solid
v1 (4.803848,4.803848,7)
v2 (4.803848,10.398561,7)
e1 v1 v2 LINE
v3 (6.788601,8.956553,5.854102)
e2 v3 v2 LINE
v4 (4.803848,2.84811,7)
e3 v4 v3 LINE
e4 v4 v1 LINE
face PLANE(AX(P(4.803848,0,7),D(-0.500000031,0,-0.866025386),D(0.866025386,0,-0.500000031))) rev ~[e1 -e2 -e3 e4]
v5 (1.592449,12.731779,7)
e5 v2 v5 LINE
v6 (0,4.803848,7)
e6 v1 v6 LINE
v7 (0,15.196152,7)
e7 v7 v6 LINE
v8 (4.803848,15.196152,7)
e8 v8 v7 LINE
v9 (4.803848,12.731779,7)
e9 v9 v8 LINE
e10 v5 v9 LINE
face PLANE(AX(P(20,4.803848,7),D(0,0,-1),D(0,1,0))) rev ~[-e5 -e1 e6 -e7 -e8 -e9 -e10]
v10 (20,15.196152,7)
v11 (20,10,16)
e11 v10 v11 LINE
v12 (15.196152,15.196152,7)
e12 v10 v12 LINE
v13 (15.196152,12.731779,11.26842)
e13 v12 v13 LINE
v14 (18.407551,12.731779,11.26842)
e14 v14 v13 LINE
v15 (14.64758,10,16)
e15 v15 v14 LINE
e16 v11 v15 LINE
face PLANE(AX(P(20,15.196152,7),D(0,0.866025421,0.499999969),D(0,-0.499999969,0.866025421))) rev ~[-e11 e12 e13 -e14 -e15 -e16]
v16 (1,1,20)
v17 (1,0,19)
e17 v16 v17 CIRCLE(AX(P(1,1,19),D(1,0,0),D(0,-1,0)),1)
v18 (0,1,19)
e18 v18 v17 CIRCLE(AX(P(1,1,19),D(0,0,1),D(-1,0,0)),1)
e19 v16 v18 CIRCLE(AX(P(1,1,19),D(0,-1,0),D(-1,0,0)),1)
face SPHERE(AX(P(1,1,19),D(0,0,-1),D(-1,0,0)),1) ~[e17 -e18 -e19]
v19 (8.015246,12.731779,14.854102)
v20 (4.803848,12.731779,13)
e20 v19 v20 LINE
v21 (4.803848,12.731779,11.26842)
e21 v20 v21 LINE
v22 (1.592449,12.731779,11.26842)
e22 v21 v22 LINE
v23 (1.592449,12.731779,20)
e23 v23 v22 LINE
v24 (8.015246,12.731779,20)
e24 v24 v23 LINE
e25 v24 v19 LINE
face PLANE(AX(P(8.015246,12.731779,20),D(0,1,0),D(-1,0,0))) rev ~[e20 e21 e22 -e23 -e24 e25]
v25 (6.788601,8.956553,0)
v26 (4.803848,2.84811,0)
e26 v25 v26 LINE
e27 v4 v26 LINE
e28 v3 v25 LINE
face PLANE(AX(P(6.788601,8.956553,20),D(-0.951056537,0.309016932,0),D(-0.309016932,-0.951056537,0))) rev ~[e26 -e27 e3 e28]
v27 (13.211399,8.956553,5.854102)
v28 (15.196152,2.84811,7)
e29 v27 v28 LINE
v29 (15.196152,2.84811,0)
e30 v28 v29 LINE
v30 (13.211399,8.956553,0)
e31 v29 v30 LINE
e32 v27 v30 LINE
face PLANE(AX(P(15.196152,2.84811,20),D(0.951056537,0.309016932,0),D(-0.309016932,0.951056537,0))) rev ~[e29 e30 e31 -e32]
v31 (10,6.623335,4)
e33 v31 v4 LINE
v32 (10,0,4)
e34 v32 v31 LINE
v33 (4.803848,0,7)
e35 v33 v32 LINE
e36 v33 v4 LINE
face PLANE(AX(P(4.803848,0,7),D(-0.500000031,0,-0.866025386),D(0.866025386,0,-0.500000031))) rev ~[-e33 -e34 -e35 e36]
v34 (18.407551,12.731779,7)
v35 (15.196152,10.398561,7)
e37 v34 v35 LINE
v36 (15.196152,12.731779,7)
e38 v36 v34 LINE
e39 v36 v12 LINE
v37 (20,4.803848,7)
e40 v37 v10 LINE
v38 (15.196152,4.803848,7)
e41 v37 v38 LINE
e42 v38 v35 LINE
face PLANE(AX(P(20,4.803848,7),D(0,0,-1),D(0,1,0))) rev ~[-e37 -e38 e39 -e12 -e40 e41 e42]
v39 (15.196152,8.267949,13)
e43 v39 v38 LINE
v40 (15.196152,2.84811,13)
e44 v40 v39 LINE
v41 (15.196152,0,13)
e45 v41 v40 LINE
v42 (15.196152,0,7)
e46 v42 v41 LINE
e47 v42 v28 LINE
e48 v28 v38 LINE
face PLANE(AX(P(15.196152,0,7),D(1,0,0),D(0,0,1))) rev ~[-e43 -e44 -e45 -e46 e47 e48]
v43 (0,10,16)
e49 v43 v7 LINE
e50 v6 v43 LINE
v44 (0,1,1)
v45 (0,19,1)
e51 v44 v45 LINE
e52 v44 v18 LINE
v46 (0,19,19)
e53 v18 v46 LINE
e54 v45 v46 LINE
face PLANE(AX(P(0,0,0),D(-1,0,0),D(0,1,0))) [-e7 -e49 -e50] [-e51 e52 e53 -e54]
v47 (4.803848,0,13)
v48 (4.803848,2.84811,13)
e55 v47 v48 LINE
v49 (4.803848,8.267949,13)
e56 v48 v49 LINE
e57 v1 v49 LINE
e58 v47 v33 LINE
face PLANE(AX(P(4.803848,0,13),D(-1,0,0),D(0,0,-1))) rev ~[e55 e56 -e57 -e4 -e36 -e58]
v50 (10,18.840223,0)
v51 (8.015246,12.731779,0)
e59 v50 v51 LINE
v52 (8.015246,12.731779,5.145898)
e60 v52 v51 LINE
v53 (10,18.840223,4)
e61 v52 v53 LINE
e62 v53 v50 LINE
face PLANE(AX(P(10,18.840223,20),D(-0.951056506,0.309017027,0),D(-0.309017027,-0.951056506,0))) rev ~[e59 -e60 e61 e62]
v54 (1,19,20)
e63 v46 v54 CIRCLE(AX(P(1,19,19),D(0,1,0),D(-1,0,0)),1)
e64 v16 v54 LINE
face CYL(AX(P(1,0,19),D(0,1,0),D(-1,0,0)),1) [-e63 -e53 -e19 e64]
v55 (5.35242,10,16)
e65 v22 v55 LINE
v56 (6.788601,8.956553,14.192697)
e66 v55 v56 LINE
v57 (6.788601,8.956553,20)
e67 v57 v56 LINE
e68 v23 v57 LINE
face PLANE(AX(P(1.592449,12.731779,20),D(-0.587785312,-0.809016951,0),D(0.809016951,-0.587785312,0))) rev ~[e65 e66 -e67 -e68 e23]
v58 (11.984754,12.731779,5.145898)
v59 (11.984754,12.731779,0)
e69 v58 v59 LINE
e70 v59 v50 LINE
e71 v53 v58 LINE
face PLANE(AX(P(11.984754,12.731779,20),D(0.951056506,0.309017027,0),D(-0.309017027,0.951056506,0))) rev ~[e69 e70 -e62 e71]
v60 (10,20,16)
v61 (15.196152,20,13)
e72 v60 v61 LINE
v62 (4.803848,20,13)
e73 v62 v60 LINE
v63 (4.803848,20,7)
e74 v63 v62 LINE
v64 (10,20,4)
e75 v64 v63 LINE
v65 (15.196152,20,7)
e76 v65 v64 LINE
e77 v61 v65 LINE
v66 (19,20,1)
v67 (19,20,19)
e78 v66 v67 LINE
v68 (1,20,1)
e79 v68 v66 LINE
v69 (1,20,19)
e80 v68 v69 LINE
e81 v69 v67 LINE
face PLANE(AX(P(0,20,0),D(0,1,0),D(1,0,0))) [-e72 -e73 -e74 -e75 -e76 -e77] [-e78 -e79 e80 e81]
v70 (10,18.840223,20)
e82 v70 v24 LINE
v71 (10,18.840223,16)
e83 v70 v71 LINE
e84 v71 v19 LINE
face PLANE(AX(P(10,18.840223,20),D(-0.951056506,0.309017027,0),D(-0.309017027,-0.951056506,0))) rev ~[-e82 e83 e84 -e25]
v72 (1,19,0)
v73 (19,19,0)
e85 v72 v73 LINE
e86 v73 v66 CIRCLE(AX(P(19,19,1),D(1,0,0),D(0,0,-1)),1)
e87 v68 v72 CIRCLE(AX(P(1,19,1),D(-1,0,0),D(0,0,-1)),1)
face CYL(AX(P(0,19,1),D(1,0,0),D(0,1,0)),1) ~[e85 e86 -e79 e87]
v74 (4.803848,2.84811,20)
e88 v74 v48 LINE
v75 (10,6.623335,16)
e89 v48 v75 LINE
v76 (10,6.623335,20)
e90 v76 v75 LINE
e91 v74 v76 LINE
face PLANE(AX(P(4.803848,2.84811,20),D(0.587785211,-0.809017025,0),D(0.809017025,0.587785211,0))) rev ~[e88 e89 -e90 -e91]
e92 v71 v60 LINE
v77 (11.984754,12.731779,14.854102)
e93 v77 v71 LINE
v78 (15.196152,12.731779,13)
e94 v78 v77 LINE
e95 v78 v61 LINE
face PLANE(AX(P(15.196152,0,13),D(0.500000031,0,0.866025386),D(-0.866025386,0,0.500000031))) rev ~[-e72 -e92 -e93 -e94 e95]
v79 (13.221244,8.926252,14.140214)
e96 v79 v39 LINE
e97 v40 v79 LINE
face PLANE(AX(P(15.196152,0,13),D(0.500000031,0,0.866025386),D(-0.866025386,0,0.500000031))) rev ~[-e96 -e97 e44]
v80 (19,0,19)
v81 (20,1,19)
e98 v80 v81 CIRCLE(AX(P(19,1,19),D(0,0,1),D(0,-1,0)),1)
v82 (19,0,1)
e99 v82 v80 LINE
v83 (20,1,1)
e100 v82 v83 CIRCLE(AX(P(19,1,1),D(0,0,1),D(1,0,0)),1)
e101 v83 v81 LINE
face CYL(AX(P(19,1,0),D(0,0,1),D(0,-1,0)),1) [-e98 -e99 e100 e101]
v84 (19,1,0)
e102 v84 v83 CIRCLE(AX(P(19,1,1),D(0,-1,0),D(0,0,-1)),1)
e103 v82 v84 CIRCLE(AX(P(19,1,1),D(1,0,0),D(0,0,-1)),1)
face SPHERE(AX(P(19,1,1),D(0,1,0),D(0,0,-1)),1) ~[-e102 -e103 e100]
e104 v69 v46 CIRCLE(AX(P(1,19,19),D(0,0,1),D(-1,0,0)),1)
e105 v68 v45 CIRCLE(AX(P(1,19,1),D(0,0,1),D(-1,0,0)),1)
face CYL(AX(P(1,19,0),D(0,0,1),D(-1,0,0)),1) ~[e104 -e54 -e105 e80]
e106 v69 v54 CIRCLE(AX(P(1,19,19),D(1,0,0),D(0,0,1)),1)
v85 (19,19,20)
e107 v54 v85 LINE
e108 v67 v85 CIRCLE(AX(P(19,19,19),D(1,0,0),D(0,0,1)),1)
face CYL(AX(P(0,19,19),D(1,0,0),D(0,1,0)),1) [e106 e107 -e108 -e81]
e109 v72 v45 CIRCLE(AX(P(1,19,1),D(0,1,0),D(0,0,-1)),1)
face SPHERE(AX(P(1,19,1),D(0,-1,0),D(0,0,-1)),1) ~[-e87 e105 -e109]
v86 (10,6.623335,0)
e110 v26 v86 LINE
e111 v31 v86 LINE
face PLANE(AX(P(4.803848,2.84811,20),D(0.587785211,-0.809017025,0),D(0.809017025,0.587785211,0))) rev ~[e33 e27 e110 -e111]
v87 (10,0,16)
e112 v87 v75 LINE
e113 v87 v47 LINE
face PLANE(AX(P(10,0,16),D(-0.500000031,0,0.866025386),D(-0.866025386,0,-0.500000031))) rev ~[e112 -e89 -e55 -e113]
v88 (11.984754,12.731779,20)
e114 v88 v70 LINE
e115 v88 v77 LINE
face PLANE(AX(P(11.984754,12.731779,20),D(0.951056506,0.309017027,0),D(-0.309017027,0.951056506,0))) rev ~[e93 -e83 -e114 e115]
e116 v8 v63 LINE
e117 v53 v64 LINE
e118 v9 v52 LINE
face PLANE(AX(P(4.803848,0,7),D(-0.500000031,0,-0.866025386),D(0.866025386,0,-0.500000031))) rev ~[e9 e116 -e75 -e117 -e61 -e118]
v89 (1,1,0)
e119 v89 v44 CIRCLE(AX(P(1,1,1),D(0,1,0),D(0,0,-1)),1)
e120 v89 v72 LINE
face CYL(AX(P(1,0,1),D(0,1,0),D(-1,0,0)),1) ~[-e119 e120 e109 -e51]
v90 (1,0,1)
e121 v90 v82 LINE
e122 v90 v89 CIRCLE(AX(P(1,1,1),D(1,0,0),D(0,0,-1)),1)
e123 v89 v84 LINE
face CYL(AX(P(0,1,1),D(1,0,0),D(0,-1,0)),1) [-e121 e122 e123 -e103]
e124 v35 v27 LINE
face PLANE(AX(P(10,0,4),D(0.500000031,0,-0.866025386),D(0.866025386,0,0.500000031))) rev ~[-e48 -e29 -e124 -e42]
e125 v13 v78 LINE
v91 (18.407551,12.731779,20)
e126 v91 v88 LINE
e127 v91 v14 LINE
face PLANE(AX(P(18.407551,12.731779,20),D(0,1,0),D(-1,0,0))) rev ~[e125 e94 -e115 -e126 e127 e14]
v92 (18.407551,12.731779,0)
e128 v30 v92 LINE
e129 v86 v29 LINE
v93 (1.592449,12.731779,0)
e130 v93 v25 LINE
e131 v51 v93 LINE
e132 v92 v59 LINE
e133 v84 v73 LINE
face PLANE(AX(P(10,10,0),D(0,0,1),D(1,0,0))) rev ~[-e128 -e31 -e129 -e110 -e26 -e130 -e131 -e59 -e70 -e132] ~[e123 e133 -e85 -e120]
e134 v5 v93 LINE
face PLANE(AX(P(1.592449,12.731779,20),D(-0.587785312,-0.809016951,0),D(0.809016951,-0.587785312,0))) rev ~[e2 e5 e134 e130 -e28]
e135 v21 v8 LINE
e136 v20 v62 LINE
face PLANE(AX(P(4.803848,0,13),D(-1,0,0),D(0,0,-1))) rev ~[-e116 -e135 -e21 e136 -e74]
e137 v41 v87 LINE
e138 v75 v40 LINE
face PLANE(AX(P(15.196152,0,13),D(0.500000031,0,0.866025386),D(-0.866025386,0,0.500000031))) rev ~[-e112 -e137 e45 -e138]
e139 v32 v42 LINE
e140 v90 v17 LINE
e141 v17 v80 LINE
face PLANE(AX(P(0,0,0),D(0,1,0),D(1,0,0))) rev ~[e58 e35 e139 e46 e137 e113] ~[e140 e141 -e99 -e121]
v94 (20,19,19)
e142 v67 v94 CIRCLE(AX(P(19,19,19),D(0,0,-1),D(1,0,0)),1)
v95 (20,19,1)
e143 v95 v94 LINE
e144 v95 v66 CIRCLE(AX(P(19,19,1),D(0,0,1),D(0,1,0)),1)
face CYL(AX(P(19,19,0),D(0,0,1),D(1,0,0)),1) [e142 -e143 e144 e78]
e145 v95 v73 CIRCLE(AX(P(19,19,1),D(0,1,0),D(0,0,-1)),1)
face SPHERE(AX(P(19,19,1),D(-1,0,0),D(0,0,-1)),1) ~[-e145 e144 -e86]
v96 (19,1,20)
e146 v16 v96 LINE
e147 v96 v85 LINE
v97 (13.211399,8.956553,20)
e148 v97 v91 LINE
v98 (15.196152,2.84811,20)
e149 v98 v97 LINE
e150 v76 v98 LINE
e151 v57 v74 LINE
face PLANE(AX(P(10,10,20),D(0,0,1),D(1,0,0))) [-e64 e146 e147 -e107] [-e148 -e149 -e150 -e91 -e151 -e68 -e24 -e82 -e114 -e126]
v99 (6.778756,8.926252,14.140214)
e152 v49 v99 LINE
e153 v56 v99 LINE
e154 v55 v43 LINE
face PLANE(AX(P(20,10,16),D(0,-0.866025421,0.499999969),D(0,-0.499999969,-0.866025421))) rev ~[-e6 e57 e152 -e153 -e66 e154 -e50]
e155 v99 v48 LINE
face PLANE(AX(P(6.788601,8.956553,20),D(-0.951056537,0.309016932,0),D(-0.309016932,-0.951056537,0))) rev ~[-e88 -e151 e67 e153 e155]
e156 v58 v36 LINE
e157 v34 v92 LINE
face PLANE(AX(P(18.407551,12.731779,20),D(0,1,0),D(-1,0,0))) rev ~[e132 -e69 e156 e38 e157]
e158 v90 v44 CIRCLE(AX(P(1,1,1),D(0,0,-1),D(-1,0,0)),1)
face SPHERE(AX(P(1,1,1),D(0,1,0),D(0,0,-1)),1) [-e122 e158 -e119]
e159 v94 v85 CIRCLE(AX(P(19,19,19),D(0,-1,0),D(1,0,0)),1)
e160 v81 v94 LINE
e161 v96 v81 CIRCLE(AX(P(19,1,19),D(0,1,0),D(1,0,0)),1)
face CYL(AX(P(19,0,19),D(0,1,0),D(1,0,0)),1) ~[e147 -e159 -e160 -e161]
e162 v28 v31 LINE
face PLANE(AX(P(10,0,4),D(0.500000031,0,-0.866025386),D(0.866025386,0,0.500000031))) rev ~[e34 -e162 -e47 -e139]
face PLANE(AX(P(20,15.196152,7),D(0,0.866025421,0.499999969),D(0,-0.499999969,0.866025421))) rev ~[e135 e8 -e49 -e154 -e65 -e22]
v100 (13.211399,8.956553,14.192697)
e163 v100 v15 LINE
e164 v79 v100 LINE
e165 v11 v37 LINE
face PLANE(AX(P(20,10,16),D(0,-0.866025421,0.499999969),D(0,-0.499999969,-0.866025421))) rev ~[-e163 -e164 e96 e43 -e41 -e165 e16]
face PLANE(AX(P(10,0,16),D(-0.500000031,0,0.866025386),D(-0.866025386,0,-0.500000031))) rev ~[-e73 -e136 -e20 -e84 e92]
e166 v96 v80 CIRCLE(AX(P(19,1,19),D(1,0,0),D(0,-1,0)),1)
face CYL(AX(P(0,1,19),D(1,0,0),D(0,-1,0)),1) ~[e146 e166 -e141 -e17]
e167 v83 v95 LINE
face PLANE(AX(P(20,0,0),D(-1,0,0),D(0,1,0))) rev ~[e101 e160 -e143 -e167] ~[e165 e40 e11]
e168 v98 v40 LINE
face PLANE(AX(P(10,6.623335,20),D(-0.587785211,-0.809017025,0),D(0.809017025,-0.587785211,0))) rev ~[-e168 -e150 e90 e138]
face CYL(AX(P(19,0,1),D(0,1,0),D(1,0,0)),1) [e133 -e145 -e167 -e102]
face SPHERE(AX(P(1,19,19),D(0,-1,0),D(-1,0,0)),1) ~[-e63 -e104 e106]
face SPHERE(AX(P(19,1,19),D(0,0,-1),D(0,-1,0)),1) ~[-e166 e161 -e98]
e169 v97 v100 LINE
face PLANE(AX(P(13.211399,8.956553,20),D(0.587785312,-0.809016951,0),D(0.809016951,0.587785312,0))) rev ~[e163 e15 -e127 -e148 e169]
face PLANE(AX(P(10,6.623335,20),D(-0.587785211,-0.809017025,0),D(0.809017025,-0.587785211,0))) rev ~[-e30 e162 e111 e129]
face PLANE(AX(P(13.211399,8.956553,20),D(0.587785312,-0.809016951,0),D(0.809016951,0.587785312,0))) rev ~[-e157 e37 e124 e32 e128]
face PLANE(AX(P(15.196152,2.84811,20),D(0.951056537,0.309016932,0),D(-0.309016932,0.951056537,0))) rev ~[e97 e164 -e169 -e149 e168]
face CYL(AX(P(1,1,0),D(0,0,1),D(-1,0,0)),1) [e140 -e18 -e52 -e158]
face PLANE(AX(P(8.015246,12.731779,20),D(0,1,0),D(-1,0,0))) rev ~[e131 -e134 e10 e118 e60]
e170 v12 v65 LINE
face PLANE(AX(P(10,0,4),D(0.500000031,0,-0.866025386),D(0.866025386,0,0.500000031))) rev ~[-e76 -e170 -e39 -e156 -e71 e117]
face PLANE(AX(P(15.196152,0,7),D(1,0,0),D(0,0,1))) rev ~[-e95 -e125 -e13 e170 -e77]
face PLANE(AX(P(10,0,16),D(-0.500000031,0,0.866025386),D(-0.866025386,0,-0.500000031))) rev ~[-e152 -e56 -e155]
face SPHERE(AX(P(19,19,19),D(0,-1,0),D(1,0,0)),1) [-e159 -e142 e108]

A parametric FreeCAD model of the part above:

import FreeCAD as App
import Part
import Sketcher
Q = App.Units.Quantity


def add_polygon(sketch, points):
    """Adds a closed chain of lines whose ends are joined by coincident constraints."""
    first, n = sketch.GeometryCount, len(points)
    for a, b in zip(points, points[1:] + points[:1]):
        sketch.addGeometry(Part.LineSegment(App.Vector(*a, 0), App.Vector(*b, 0)), False)
    for i in range(n):
        sketch.addConstraint(Sketcher.Constraint("Coincident", first + i, 2, first + (i + 1) % n, 1))

doc = App.newDocument("Part")
params = doc.addObject("Spreadsheet::Sheet", "Params")
for row, (alias, value) in enumerate([
    ("sketch1_width", "20 mm"),
    ("pad1_length", "20 mm"),
    ("fillet_radius", "1 mm"),
    ("sketch2_height", "6 mm"),
    ("sketch2_length", "6 mm"),
], start=1):
    params.set(f"A{row}", alias)
    params.set(f"B{row}", "=" + value)
    params.setAlias(f"B{row}", alias)

body = doc.addObject("PartDesign::Body", "Body")

sketch1 = doc.addObject("Sketcher::SketchObject", "Sketch")
body.addObject(sketch1)
sketch1.AttachmentSupport = (doc.XY_Plane, [""])
sketch1.MapMode = "FlatFace"
add_polygon(sketch1, [(0, 20), (0, 0), (20, 0), (20, 20)])
sketch1.addConstraint(Sketcher.Constraint("Vertical", 0))
sketch1.addConstraint(Sketcher.Constraint("Horizontal", 1))
sketch1.addConstraint(Sketcher.Constraint("Vertical", 2))
sketch1.addConstraint(Sketcher.Constraint("Horizontal", 3))
sketch1.addConstraint(Sketcher.Constraint("Coincident", 0, 2, -1, 1))
sketch1.addConstraint(Sketcher.Constraint("Equal", 3, 0))
sketch1.addConstraint(Sketcher.Constraint("DistanceX", 1, 1, 1, 2, Q("20 mm")))
sketch1.setExpression("Constraints[10]", "Params.sketch1_width")
pad1 = doc.addObject("PartDesign::Pad", "Pad")
body.addObject(pad1)
pad1.Profile = sketch1
pad1.setExpression("Length", "Params.pad1_length")
doc.recompute()

fillet = doc.addObject("PartDesign::Fillet", "Fillet")
body.addObject(fillet)
fillet.Base = (pad1, ["Edge1"])
fillet.UseAllEdges = True
fillet.setExpression("Radius", "Params.fillet_radius")

sketch2 = doc.addObject("Sketcher::SketchObject", "Sketch001")
body.addObject(sketch2)
sketch2.AttachmentSupport = (doc.XZ_Plane, [""])
sketch2.MapMode = "FlatFace"
add_polygon(sketch2, [(15, 7), (15, 13), (10, 16), (5, 13), (5, 7), (10, 4)])
sketch2.addConstraint(Sketcher.Constraint("Vertical", 0))
sketch2.addConstraint(Sketcher.Constraint("Vertical", 3))
sketch2.addConstraint(Sketcher.Constraint("Parallel", 1, 4))
sketch2.addConstraint(Sketcher.Constraint("Parallel", 2, 5))
sketch2.addConstraint(Sketcher.Constraint("Horizontal", 0, 2, 2, 2))
sketch2.addConstraint(Sketcher.Constraint("Horizontal", 3, 2, 5, 2))
sketch2.addConstraint(Sketcher.Constraint("Vertical", 1, 2, 4, 2))
sketch2.addConstraint(Sketcher.Constraint("DistanceY", 0, 1, 0, 2, Q("6 mm")))
sketch2.addConstraint(Sketcher.Constraint("Angle", 1, Q("149.999998 deg")))
sketch2.addConstraint(Sketcher.Constraint("Distance", 1, Q("6 mm")))
sketch2.addConstraint(Sketcher.Constraint("DistanceY", -1, 1, 0, 2, Q("13 mm")))
sketch2.addConstraint(Sketcher.Constraint("DistanceX", -1, 1, 1, 2, Q("10 mm")))
sketch2.setExpression("Constraints[13]", "Params.sketch2_height")
sketch2.setExpression("Constraints[15]", "Params.sketch2_length")
pocket1 = doc.addObject("PartDesign::Pocket", "Pocket")
body.addObject(pocket1)
pocket1.Profile = sketch2
pocket1.Type = "ThroughAll"

sketch3 = doc.addObject("Sketcher::SketchObject", "Sketch002")
body.addObject(sketch3)
sketch3.AttachmentSupport = (doc.YZ_Plane, [""])
sketch3.MapMode = "FlatFace"
sketch3.AttachmentOffset = App.Placement(App.Vector(0, 0, 20), App.Rotation())
add_polygon(sketch3, [(15, 7), (10, 16), (5, 7)])
sketch3.addConstraint(Sketcher.Constraint("Horizontal", 2))
sketch3.addConstraint(Sketcher.Constraint("Equal", 0, 1))
sketch3.addConstraint(Sketcher.Constraint("Angle", 0, Q("119.999998 deg")))
sketch3.addConstraint(Sketcher.Constraint("DistanceX", -1, 1, 0, 2, Q("10 mm")))
sketch3.addConstraint(Sketcher.Constraint("DistanceY", -1, 1, 0, 2, Q("16 mm")))
sketch3.addConstraint(Sketcher.Constraint("DistanceY", -1, 1, 1, 2, Q("7 mm")))
pocket2 = doc.addObject("PartDesign::Pocket", "Pocket001")
body.addObject(pocket2)
pocket2.Profile = sketch3
pocket2.Type = "ThroughAll"

sketch4 = doc.addObject("Sketcher::SketchObject", "Sketch003")
body.addObject(sketch4)
sketch4.AttachmentSupport = (doc.XY_Plane, [""])
sketch4.MapMode = "FlatFace"
sketch4.AttachmentOffset = App.Placement(App.Vector(0, 0, 20), App.Rotation())
add_polygon(sketch4, [(13, 9), (18, 13), (12, 13), (10, 19), (8, 13), (2, 13), (7, 9), (5, 3), (10, 7), (15, 3)])
sketch4.addConstraint(Sketcher.Constraint("Horizontal", 1))
sketch4.addConstraint(Sketcher.Constraint("Horizontal", 4))
sketch4.addConstraint(Sketcher.Constraint("Parallel", 3, 6))
sketch4.addConstraint(Sketcher.Constraint("Parallel", 0, 7))
sketch4.addConstraint(Sketcher.Constraint("Parallel", 5, 8))
sketch4.addConstraint(Sketcher.Constraint("Parallel", 2, 9))
sketch4.addConstraint(Sketcher.Constraint("Horizontal", 1, 2, 3, 2))
sketch4.addConstraint(Sketcher.Constraint("Horizontal", 6, 2, 8, 2))
sketch4.addConstraint(Sketcher.Constraint("Horizontal", 5, 2, 9, 2))
sketch4.addConstraint(Sketcher.Constraint("Vertical", 2, 2, 7, 2))
sketch4.addConstraint(Sketcher.Constraint("Equal", 1, 4))
sketch4.addConstraint(Sketcher.Constraint("Equal", 0, 2))
sketch4.addConstraint(Sketcher.Constraint("Equal", 3, 5))
sketch4.addConstraint(Sketcher.Constraint("Equal", 5, 6))
sketch4.addConstraint(Sketcher.Constraint("Equal", 6, 7))
sketch4.addConstraint(Sketcher.Constraint("Angle", 0, Q("36.000004 deg")))
sketch4.addConstraint(Sketcher.Constraint("Angle", 2, Q("108.000002 deg")))
sketch4.addConstraint(Sketcher.Constraint("DistanceX", -1, 1, 2, 2, Q("10 mm")))
sketch4.addConstraint(Sketcher.Constraint("Distance", 2, Q("6.422798 mm")))
sketch4.addConstraint(Sketcher.Constraint("DistanceY", -1, 1, 0, 2, Q("12.731779 mm")))
pocket3 = doc.addObject("PartDesign::Pocket", "Pocket002")
body.addObject(pocket3)
pocket3.Profile = sketch4
pocket3.Type = "ThroughAll"

doc.recompute()
